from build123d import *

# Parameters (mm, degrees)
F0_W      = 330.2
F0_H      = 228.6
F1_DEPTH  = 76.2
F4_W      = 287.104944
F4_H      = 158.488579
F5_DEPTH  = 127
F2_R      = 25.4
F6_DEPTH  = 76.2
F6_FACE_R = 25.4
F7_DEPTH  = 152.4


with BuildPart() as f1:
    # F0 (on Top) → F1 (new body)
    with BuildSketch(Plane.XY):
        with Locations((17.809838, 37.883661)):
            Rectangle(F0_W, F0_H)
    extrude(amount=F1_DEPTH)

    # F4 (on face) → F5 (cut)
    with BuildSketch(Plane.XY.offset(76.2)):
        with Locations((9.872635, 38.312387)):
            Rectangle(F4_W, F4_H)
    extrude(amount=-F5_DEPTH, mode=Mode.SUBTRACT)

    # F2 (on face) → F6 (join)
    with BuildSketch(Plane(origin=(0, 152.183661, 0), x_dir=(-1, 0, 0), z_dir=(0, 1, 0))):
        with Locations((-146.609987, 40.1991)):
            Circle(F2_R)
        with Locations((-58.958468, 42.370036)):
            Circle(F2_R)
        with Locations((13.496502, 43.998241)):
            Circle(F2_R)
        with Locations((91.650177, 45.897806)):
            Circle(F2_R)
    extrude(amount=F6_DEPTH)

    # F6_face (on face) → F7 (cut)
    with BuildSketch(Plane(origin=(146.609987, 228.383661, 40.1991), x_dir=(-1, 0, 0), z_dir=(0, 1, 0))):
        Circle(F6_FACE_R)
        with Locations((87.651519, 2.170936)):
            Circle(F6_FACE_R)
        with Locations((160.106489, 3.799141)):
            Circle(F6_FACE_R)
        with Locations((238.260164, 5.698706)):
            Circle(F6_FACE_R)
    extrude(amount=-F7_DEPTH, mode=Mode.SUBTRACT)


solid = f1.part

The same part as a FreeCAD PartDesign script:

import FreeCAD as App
import Part
import Sketcher
from FreeCAD import Vector
Q = App.Units.Quantity

doc = App.newDocument("Part")
params = doc.addObject("Spreadsheet::Sheet", "Params")
for row, (alias, value) in enumerate([
    ("sketch1_width", "13 in"),
    ("sketch1_height", "9 in"),
    ("pad1_length", "3 in"),
    ("pocket1_length", "5 in"),
    ("sketch3_diameter", "2 in"),
    ("pad2_length", "3 in"),
    ("sketch4_diameter", "2 in"),
    ("pocket2_length", "6 in"),
], start=1):
    params.set(f"A{row}", alias)
    params.set(f"B{row}", "=" + value)
    params.setAlias(f"B{row}", alias)

body = doc.addObject("PartDesign::Body", "Body")

sketch1 = body.newObject("Sketcher::SketchObject", "Sketch")
sketch1.AttachmentSupport = (doc.getObject("XY_Plane"), [""])
sketch1.MapMode = "FlatFace"
sketch1.addGeometry([
    Part.LineSegment(Vector(-147, 152, 0), Vector(-147, -76, 0)),
    Part.LineSegment(Vector(-147, -76, 0), Vector(183, -76, 0)),
    Part.LineSegment(Vector(183, -76, 0), Vector(183, 152, 0)),
    Part.LineSegment(Vector(183, 152, 0), Vector(-147, 152, 0)),
], False)
sketch1.addConstraint([
    Sketcher.Constraint("Coincident", 0, 2, 1, 1),
    Sketcher.Constraint("Coincident", 1, 2, 2, 1),
    Sketcher.Constraint("Coincident", 2, 2, 3, 1),
    Sketcher.Constraint("Coincident", 3, 2, 0, 1),
    Sketcher.Constraint("Vertical", 0),
    Sketcher.Constraint("Horizontal", 1),
    Sketcher.Constraint("Vertical", 2),
    Sketcher.Constraint("Horizontal", 3),
    Sketcher.Constraint("DistanceX", 1, 1, 1, 2, Q("13 in")),
    Sketcher.Constraint("DistanceY", 0, 2, 0, 1, Q("9 in")),
    Sketcher.Constraint("DistanceY", 0, 2, -1, 1, Q("76.416339 mm")),
    Sketcher.Constraint("DistanceX", -1, 1, 1, 2, Q("182.909838 mm")),
])
sketch1.setExpression("Constraints[8]", "Params.sketch1_width")
sketch1.setExpression("Constraints[9]", "Params.sketch1_height")
pad1 = body.newObject("PartDesign::Pad", "Pad")
pad1.Profile = sketch1
pad1.setExpression("Length", "Params.pad1_length")

sketch2 = body.newObject("Sketcher::SketchObject", "Sketch001")
sketch2.AttachmentSupport = (doc.getObject("XY_Plane"), [""])
sketch2.MapMode = "FlatFace"
sketch2.AttachmentOffset = App.Placement(Vector(0, 0, 3 * 25.4), App.Rotation())
sketch2.addGeometry([
    Part.LineSegment(Vector(-134, 118, 0), Vector(-134, -41, 0)),
    Part.LineSegment(Vector(-134, -41, 0), Vector(153, -41, 0)),
    Part.LineSegment(Vector(153, -41, 0), Vector(153, 118, 0)),
    Part.LineSegment(Vector(153, 118, 0), Vector(-134, 118, 0)),
], False)
sketch2.addConstraint([
    Sketcher.Constraint("Coincident", 0, 2, 1, 1),
    Sketcher.Constraint("Coincident", 1, 2, 2, 1),
    Sketcher.Constraint("Coincident", 2, 2, 3, 1),
    Sketcher.Constraint("Coincident", 3, 2, 0, 1),
    Sketcher.Constraint("Vertical", 0),
    Sketcher.Constraint("Horizontal", 1),
    Sketcher.Constraint("Vertical", 2),
    Sketcher.Constraint("Horizontal", 3),
    Sketcher.Constraint("DistanceY", 0, 2, 0, 1, Q("158.488579 mm")),
    Sketcher.Constraint("DistanceX", 1, 1, 1, 2, Q("287.104944 mm")),
    Sketcher.Constraint("DistanceX", 0, 2, -1, 1, Q("133.679837 mm")),
    Sketcher.Constraint("DistanceY", 0, 2, -1, 1, Q("40.931902 mm")),
])
pocket1 = body.newObject("PartDesign::Pocket", "Pocket")
pocket1.Profile = sketch2
pocket1.setExpression("Length", "Params.pocket1_length")

sketch3 = body.newObject("Sketcher::SketchObject", "Sketch002")
sketch3.AttachmentSupport = (doc.getObject("XZ_Plane"), [""])
sketch3.MapMode = "FlatFace"
sketch3.AttachmentOffset = App.Placement(Vector(0, 0, -152.183661), App.Rotation())
sketch3.addGeometry([
    Part.Circle(Vector(147, 40, 0), Vector(0, 0, 1), 25),
    Part.Circle(Vector(59, 42, 0), Vector(0, 0, 1), 25),
    Part.Circle(Vector(-13, 44, 0), Vector(0, 0, 1), 25),
    Part.Circle(Vector(-92, 46, 0), Vector(0, 0, 1), 25),
], False)
sketch3.addConstraint([
    Sketcher.Constraint("Equal", 0, 1),
    Sketcher.Constraint("Equal", 1, 2),
    Sketcher.Constraint("Equal", 2, 3),
    Sketcher.Constraint("Diameter", 0, Q("2 in")),
    Sketcher.Constraint("DistanceY", -1, 1, 0, 3, Q("40.1991 mm")),
    Sketcher.Constraint("DistanceX", -1, 1, 1, 3, Q("58.958468 mm")),
    Sketcher.Constraint("DistanceY", -1, 1, 2, 3, Q("43.998241 mm")),
    Sketcher.Constraint("DistanceX", 1, 3, 0, 3, Q("87.651519 mm")),
    Sketcher.Constraint("DistanceX", 2, 3, 1, 3, Q("72.45497 mm")),
    Sketcher.Constraint("DistanceY", 1, 3, 3, 3, Q("3.52777 mm")),
    Sketcher.Constraint("DistanceY", -1, 1, 1, 3, Q("42.370036 mm")),
    Sketcher.Constraint("DistanceX", 3, 3, -1, 1, Q("91.650177 mm")),
])
sketch3.setExpression("Constraints[3]", "Params.sketch3_diameter")
pad2 = body.newObject("PartDesign::Pad", "Pad001")
pad2.Profile = sketch3
pad2.setExpression("Length", "Params.pad2_length")
pad2.Reversed = True

sketch4 = body.newObject("Sketcher::SketchObject", "Sketch003")
sketch4.AttachmentSupport = (doc.getObject("XZ_Plane"), [""])
sketch4.MapMode = "FlatFace"
sketch4.AttachmentOffset = App.Placement(Vector(0, 0, -228.383661), App.Rotation())
sketch4.addGeometry([
    Part.Circle(Vector(147, 40, 0), Vector(0, 0, 1), 25),
    Part.Circle(Vector(59, 42, 0), Vector(0, 0, 1), 25),
    Part.Circle(Vector(-13, 44, 0), Vector(0, 0, 1), 25),
    Part.Circle(Vector(-92, 46, 0), Vector(0, 0, 1), 25),
], False)
sketch4.addConstraint([
    Sketcher.Constraint("Equal", 0, 1),
    Sketcher.Constraint("Equal", 1, 2),
    Sketcher.Constraint("Equal", 2, 3),
    Sketcher.Constraint("Diameter", 0, Q("2 in")),
    Sketcher.Constraint("DistanceY", -1, 1, 0, 3, Q("40.1991 mm")),
    Sketcher.Constraint("DistanceX", -1, 1, 1, 3, Q("58.958468 mm")),
    Sketcher.Constraint("DistanceY", -1, 1, 2, 3, Q("43.998241 mm")),
    Sketcher.Constraint("DistanceX", 1, 3, 0, 3, Q("87.651519 mm")),
    Sketcher.Constraint("DistanceX", 2, 3, 1, 3, Q("72.45497 mm")),
    Sketcher.Constraint("DistanceY", 1, 3, 3, 3, Q("3.52777 mm")),
    Sketcher.Constraint("DistanceY", -1, 1, 1, 3, Q("42.370036 mm")),
    Sketcher.Constraint("DistanceX", 3, 3, -1, 1, Q("91.650177 mm")),
])
sketch4.setExpression("Constraints[3]", "Params.sketch4_diameter")
pocket2 = body.newObject("PartDesign::Pocket", "Pocket001")
pocket2.Profile = sketch4
pocket2.setExpression("Length", "Params.pocket2_length")
pocket2.Reversed = True

doc.recompute()
